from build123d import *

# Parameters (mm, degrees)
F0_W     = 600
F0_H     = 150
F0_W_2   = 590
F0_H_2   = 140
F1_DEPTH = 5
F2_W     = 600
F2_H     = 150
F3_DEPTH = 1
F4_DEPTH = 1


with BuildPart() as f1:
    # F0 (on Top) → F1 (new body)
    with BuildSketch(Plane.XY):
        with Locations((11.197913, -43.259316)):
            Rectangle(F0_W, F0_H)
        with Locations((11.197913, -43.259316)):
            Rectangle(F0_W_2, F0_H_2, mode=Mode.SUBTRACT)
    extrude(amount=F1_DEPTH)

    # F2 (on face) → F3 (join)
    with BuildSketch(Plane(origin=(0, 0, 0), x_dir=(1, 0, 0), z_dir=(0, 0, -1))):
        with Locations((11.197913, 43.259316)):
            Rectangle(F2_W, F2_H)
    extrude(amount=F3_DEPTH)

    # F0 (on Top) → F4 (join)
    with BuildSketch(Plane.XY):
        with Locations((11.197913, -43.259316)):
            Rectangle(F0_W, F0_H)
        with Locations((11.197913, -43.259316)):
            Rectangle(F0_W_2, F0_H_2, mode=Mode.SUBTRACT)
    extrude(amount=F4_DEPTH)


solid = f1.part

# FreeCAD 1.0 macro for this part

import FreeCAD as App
import Part
import Sketcher
from FreeCAD import Vector
Q = App.Units.Quantity


def add_polygon(sketch, points):
    """Adds a closed chain of lines whose ends are joined by coincident constraints."""
    first, n = sketch.GeometryCount, len(points)
    for a, b in zip(points, points[1:] + points[:1]):
        sketch.addGeometry(Part.LineSegment(App.Vector(*a, 0), App.Vector(*b, 0)), False)
    for i in range(n):
        sketch.addConstraint(Sketcher.Constraint("Coincident", first + i, 2, first + (i + 1) % n, 1))

doc = App.newDocument("Part")
body = doc.addObject("PartDesign::Body", "Body")

# Sketch on XY plane
sketch1 = body.newObject("Sketcher::SketchObject", "Sketch")
sketch1.AttachmentSupport = (doc.getObject("XY_Plane"), [""])
sketch1.MapMode = "FlatFace"
add_polygon(sketch1, [(-289, 32), (-289, -118), (311, -118), (311, 32)])  # lines 0-3
add_polygon(sketch1, [(306, -113), (-284, -113), (-284, 27), (306, 27)])  # lines 4-7
sketch1.addConstraint([
    Sketcher.Constraint("Vertical", 0),
    Sketcher.Constraint("Horizontal", 1),
    Sketcher.Constraint("Vertical", 2),
    Sketcher.Constraint("Horizontal", 3),
    Sketcher.Constraint("Horizontal", 4),
    Sketcher.Constraint("Vertical", 5),
    Sketcher.Constraint("Horizontal", 6),
    Sketcher.Constraint("Vertical", 7),
    Sketcher.Constraint("DistanceX", 1, 1, 1, 2, Q("600 mm")),
    Sketcher.Constraint("DistanceX", 4, 2, 4, 1, Q("590 mm")),
    Sketcher.Constraint("DistanceY", 0, 2, 0, 1, Q("150 mm")),
    Sketcher.Constraint("DistanceY", 5, 1, 5, 2, Q("140 mm")),
    Sketcher.Constraint("DistanceX", 0, 2, 4, 2, Q("5 mm")),
    Sketcher.Constraint("DistanceY", 0, 2, 4, 2, Q("5 mm")),
    Sketcher.Constraint("DistanceX", 0, 2, -1, 1, Q("288.802087 mm")),
    Sketcher.Constraint("DistanceY", 0, 2, -1, 1, Q("118.259316 mm")),
])
pad1 = body.newObject("PartDesign::Pad", "Pad")
pad1.Profile = sketch1
pad1.Length = 5

# Sketch on XY plane
sketch2 = body.newObject("Sketcher::SketchObject", "Sketch001")
sketch2.AttachmentSupport = (doc.getObject("XY_Plane"), [""])
sketch2.MapMode = "FlatFace"
add_polygon(sketch2, [(-289, -118), (-289, 32), (311, 32), (311, -118)])  # lines 0-3
sketch2.addConstraint([
    Sketcher.Constraint("Vertical", 0),
    Sketcher.Constraint("Horizontal", 1),
    Sketcher.Constraint("Vertical", 2),
    Sketcher.Constraint("Horizontal", 3),
    Sketcher.Constraint("DistanceX", 1, 1, 1, 2, Q("600 mm")),
    Sketcher.Constraint("DistanceY", 0, 1, 0, 2, Q("150 mm")),
    Sketcher.Constraint("DistanceX", 0, 2, -1, 1, Q("288.802087 mm")),
    Sketcher.Constraint("DistanceY", -1, 1, 0, 2, Q("31.740684 mm")),
])
pad2 = body.newObject("PartDesign::Pad", "Pad001")
pad2.Profile = sketch2
pad2.Length = 1
pad2.Reversed = True

# Sketch on XY plane
sketch3 = body.newObject("Sketcher::SketchObject", "Sketch002")
sketch3.AttachmentSupport = (doc.getObject("XY_Plane"), [""])
sketch3.MapMode = "FlatFace"
add_polygon(sketch3, [(-289, 32), (-289, -118), (311, -118), (311, 32)])  # lines 0-3
add_polygon(sketch3, [(306, -113), (-284, -113), (-284, 27), (306, 27)])  # lines 4-7
sketch3.addConstraint([
    Sketcher.Constraint("Vertical", 0),
    Sketcher.Constraint("Horizontal", 1),
    Sketcher.Constraint("Vertical", 2),
    Sketcher.Constraint("Horizontal", 3),
    Sketcher.Constraint("Horizontal", 4),
    Sketcher.Constraint("Vertical", 5),
    Sketcher.Constraint("Horizontal", 6),
    Sketcher.Constraint("Vertical", 7),
    Sketcher.Constraint("DistanceX", 1, 1, 1, 2, Q("600 mm")),
    Sketcher.Constraint("DistanceX", 4, 2, 4, 1, Q("590 mm")),
    Sketcher.Constraint("DistanceY", 0, 2, 0, 1, Q("150 mm")),
    Sketcher.Constraint("DistanceY", 5, 1, 5, 2, Q("140 mm")),
    Sketcher.Constraint("DistanceX", 0, 2, 4, 2, Q("5 mm")),
    Sketcher.Constraint("DistanceY", 0, 2, 4, 2, Q("5 mm")),
    Sketcher.Constraint("DistanceX", 0, 2, -1, 1, Q("288.802087 mm")),
    Sketcher.Constraint("DistanceY", 0, 2, -1, 1, Q("118.259316 mm")),
])
pad3 = body.newObject("PartDesign::Pad", "Pad002")
pad3.Profile = sketch3
pad3.Length = 1

doc.recompute()
